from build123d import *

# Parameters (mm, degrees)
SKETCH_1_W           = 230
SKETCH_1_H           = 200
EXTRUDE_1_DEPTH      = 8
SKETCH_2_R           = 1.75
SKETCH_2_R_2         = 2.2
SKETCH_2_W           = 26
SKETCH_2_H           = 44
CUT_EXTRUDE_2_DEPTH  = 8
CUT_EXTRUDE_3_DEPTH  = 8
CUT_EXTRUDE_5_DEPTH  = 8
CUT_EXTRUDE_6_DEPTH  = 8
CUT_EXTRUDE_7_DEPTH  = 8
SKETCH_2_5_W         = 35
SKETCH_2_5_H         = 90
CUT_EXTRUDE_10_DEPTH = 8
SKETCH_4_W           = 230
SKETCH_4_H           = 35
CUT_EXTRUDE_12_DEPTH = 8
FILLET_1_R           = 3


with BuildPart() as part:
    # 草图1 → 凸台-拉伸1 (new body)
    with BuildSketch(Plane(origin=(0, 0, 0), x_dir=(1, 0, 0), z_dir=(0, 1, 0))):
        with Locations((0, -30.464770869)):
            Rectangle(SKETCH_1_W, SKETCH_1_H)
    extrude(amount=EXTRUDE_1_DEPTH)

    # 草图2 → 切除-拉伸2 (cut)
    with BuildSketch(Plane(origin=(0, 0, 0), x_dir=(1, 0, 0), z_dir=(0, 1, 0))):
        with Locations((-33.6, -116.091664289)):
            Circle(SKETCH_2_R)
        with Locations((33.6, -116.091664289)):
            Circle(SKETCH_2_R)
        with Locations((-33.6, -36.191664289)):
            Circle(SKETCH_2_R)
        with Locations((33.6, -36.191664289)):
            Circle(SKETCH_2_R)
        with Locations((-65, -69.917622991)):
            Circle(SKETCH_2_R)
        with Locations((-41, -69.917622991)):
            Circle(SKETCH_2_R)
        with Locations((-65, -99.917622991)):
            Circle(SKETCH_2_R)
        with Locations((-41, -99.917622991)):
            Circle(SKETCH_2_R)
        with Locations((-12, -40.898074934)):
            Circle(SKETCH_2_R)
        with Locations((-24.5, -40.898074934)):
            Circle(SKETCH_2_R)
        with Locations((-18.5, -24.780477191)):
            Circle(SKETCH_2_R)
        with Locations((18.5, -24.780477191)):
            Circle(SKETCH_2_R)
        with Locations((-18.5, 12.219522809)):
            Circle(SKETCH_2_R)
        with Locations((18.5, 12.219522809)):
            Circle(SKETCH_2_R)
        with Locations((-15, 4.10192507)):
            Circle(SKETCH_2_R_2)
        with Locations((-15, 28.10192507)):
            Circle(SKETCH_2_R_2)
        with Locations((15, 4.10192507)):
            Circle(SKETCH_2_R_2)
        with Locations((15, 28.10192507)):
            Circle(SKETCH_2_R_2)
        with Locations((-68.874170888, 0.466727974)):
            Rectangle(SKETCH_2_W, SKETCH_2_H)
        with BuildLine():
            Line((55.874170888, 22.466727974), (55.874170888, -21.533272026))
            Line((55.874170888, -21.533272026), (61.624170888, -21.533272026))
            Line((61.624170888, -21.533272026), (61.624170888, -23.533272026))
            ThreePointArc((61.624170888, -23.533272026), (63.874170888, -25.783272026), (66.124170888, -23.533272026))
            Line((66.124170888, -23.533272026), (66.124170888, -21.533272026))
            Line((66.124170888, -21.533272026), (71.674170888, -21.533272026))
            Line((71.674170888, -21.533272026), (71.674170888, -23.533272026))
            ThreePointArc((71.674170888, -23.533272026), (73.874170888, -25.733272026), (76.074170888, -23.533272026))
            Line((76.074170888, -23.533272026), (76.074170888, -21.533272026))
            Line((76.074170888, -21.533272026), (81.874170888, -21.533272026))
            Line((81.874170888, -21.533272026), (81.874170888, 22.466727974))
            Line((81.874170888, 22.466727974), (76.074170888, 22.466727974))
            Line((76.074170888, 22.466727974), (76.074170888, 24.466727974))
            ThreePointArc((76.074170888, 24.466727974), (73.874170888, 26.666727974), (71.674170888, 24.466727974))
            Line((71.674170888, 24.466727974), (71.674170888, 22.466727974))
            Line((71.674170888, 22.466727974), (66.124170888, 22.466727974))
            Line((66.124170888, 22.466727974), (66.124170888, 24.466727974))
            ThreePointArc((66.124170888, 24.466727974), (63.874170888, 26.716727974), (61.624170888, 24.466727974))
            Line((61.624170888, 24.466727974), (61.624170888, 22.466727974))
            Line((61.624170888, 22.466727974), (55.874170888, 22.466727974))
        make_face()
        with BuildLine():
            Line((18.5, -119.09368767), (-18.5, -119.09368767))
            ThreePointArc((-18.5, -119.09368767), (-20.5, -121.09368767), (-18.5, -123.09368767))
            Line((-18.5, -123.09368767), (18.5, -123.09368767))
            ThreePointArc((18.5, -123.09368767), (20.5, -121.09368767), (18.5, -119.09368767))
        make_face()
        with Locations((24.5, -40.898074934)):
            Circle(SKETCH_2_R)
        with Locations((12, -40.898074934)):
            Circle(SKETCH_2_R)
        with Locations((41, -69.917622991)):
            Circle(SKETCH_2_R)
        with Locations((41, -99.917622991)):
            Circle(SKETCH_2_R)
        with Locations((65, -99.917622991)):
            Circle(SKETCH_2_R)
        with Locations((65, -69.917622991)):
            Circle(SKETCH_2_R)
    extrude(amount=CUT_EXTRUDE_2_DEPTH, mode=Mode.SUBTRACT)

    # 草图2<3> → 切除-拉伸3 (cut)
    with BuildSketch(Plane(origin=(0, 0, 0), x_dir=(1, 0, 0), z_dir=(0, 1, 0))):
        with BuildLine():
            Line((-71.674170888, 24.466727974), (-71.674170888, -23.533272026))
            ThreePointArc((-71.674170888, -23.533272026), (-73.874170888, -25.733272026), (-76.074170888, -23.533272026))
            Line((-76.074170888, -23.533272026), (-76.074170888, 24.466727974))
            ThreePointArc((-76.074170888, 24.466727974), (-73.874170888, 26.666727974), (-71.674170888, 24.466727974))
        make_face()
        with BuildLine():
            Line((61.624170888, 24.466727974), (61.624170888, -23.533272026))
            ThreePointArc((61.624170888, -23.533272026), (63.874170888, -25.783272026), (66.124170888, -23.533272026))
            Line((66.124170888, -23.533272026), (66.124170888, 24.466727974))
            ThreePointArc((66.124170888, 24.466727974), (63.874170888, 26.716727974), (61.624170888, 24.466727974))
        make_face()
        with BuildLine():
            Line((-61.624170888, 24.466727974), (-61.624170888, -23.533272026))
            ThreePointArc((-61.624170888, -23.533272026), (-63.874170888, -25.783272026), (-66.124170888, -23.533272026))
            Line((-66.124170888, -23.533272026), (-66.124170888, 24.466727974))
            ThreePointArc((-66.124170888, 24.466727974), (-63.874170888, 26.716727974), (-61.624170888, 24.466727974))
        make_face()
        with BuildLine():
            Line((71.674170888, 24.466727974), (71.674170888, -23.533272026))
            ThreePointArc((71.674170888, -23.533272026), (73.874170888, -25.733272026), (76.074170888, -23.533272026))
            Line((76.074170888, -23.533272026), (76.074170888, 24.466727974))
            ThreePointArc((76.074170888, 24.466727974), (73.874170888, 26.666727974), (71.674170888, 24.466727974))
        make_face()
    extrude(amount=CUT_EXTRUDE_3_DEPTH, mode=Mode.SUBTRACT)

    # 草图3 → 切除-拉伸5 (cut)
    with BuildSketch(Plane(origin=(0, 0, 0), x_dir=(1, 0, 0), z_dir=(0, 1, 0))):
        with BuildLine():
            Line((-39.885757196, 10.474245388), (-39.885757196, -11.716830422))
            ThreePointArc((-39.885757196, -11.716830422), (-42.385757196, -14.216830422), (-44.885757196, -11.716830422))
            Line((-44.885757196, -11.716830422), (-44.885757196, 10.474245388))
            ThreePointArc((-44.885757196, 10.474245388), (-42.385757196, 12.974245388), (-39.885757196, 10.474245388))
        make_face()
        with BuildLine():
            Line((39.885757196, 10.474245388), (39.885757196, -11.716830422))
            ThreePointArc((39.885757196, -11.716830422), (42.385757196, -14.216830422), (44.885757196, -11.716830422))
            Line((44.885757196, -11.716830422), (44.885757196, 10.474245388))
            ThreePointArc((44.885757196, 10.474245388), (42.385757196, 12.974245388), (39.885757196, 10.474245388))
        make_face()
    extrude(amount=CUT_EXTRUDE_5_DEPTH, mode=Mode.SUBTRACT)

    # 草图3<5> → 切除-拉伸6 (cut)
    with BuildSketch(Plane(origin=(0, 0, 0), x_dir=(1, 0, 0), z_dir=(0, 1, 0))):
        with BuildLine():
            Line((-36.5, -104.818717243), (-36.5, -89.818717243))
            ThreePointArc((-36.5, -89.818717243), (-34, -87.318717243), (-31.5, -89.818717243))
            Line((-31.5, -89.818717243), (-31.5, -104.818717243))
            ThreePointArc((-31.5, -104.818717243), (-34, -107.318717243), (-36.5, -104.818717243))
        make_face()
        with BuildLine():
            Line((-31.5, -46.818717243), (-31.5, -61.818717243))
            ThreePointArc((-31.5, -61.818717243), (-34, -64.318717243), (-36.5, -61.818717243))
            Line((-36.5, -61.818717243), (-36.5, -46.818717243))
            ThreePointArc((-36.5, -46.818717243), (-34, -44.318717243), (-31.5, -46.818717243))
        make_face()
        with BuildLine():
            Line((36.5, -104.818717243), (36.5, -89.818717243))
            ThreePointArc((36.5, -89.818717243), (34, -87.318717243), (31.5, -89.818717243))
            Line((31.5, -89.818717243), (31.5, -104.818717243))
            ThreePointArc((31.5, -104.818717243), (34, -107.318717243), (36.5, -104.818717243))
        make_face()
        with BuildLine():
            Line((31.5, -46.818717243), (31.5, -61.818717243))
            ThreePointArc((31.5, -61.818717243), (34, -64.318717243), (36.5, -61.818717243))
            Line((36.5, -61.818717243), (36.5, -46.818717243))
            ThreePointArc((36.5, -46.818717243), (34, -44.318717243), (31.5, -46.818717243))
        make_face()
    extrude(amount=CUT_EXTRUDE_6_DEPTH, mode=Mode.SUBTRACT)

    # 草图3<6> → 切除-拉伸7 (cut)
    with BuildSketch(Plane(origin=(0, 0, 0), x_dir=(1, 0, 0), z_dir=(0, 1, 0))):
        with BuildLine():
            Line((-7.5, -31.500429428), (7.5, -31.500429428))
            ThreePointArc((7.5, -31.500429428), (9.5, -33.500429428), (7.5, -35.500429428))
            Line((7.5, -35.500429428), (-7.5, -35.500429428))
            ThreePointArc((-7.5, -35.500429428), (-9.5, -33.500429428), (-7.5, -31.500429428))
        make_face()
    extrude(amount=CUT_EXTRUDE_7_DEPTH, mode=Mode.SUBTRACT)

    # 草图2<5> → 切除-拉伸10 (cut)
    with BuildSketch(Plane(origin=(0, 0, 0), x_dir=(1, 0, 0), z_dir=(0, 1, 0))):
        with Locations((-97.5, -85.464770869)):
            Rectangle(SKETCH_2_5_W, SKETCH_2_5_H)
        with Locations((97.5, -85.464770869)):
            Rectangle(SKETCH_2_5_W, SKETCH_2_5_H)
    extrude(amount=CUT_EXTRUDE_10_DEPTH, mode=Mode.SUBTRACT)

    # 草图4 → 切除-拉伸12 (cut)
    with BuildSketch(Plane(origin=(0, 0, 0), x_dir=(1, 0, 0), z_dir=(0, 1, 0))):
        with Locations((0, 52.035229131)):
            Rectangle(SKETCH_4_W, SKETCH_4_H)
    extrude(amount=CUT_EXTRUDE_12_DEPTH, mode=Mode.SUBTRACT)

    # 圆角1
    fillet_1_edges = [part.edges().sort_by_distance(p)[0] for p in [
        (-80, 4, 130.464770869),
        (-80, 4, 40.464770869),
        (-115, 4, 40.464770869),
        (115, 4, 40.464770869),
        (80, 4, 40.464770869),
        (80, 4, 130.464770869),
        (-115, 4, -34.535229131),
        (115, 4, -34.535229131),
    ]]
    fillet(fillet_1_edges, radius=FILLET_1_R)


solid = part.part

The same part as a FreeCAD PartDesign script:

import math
import FreeCAD as App
import Part
import Sketcher

V = App.Vector
Q = App.Units.Quantity


def edges_at(feature, points):
    """Names of the edges that pass closest to the given points."""
    edges = feature.Shape.Edges
    near = lambda p: min(range(len(edges)), key=lambda i: edges[i].distToShape(Part.Vertex(*p))[0])
    return sorted({f"Edge{near(p) + 1}" for p in points})

doc = App.newDocument("Part")
params = doc.addObject("Spreadsheet::Sheet", "Params")
for row, (alias, value) in enumerate([
    ("sketch1_width", "230 mm"),
    ("sketch1_height", "200 mm"),
    ("pad1_length", "8 mm"),
    ("sketch2_radius", "2 mm"),
    ("sketch2_diameter", "3.5 mm"),
    ("sketch2_diameter2", "4.4 mm"),
    ("sketch2_width", "26 mm"),
    ("sketch2_width2", "37 mm"),
    ("pocket1_length", "8 mm"),
    ("sketch3_radius", "2.2 mm"),
    ("sketch3_height", "48 mm"),
    ("sketch3_radius2", "2.25 mm"),
    ("pocket2_length", "8 mm"),
    ("sketch4_radius", "2.5 mm"),
    ("pocket3_length", "8 mm"),
    ("sketch5_radius", "2.5 mm"),
    ("sketch5_height", "15 mm"),
    ("pocket4_length", "8 mm"),
    ("sketch6_radius", "2 mm"),
    ("sketch6_width", "15 mm"),
    ("pocket5_length", "8 mm"),
    ("sketch7_width", "35 mm"),
    ("sketch7_height", "90 mm"),
    ("pocket6_length", "8 mm"),
    ("sketch8_width", "230 mm"),
    ("sketch8_height", "35 mm"),
    ("pocket7_length", "8 mm"),
    ("fillet_radius", "3 mm"),
], start=1):
    params.set(f"A{row}", alias)
    params.set(f"B{row}", "=" + value)
    params.setAlias(f"B{row}", alias)

body = doc.addObject("PartDesign::Body", "Body")

sketch1 = body.newObject("Sketcher::SketchObject", "Sketch")
sketch1.AttachmentSupport = (doc.getObject("XZ_Plane"), [""])
sketch1.MapMode = "FlatFace"
sketch1.addGeometry(Part.LineSegment(V(-115, -70, 0), V(-115, 130, 0)), False)
sketch1.addGeometry(Part.LineSegment(V(-115, 130, 0), V(115, 130, 0)), False)
sketch1.addGeometry(Part.LineSegment(V(115, 130, 0), V(115, -70, 0)), False)
sketch1.addGeometry(Part.LineSegment(V(115, -70, 0), V(-115, -70, 0)), False)
sketch1.addConstraint(Sketcher.Constraint("Coincident", 0, 2, 1, 1))
sketch1.addConstraint(Sketcher.Constraint("Coincident", 1, 2, 2, 1))
sketch1.addConstraint(Sketcher.Constraint("Coincident", 2, 2, 3, 1))
sketch1.addConstraint(Sketcher.Constraint("Coincident", 3, 2, 0, 1))
sketch1.addConstraint(Sketcher.Constraint("Vertical", 0))
sketch1.addConstraint(Sketcher.Constraint("Horizontal", 1))
sketch1.addConstraint(Sketcher.Constraint("Vertical", 2))
sketch1.addConstraint(Sketcher.Constraint("Horizontal", 3))
sketch1.addConstraint(Sketcher.Constraint("DistanceX", 1, 1, 1, 2, Q("230 mm")))
sketch1.addConstraint(Sketcher.Constraint("DistanceY", 0, 1, 0, 2, Q("200 mm")))
sketch1.addConstraint(Sketcher.Constraint("DistanceX", 0, 2, -1, 1, Q("115 mm")))
sketch1.addConstraint(Sketcher.Constraint("DistanceY", -1, 1, 0, 2, Q("130.464771 mm")))
sketch1.setExpression("Constraints[8]", "Params.sketch1_width")
sketch1.setExpression("Constraints[9]", "Params.sketch1_height")
pad1 = body.newObject("PartDesign::Pad", "Pad")
pad1.Profile = sketch1
pad1.setExpression("Length", "Params.pad1_length")
pad1.Reversed = True

sketch2 = body.newObject("Sketcher::SketchObject", "Sketch001")
sketch2.AttachmentSupport = (doc.getObject("XZ_Plane"), [""])
sketch2.MapMode = "FlatFace"
sketch2.addGeometry(Part.Circle(V(-33.6, 116.1, 0), V(0, 0, 1), 1.8), False)
sketch2.addGeometry(Part.Circle(V(33.6, 116.1, 0), V(0, 0, 1), 1.8), False)
sketch2.addGeometry(Part.Circle(V(-33.6, 36.2, 0), V(0, 0, 1), 1.8), False)
sketch2.addGeometry(Part.Circle(V(33.6, 36.2, 0), V(0, 0, 1), 1.8), False)
sketch2.addGeometry(Part.Circle(V(-65, 69.9, 0), V(0, 0, 1), 1.8), False)
sketch2.addGeometry(Part.Circle(V(-41, 69.9, 0), V(0, 0, 1), 1.8), False)
sketch2.addGeometry(Part.Circle(V(-65, 99.9, 0), V(0, 0, 1), 1.8), False)
sketch2.addGeometry(Part.Circle(V(-41, 99.9, 0), V(0, 0, 1), 1.8), False)
sketch2.addGeometry(Part.Circle(V(-12, 40.9, 0), V(0, 0, 1), 1.8), False)
sketch2.addGeometry(Part.Circle(V(-24.5, 40.9, 0), V(0, 0, 1), 1.8), False)
sketch2.addGeometry(Part.Circle(V(-18.5, 24.8, 0), V(0, 0, 1), 1.8), False)
sketch2.addGeometry(Part.Circle(V(18.5, 24.8, 0), V(0, 0, 1), 1.8), False)
sketch2.addGeometry(Part.Circle(V(-18.5, -12.2, 0), V(0, 0, 1), 1.8), False)
sketch2.addGeometry(Part.Circle(V(18.5, -12.2, 0), V(0, 0, 1), 1.8), False)
sketch2.addGeometry(Part.Circle(V(-15, -4.1, 0), V(0, 0, 1), 2.2), False)
sketch2.addGeometry(Part.Circle(V(-15, -28.1, 0), V(0, 0, 1), 2.2), False)
sketch2.addGeometry(Part.Circle(V(15, -4.1, 0), V(0, 0, 1), 2.2), False)
sketch2.addGeometry(Part.Circle(V(15, -28.1, 0), V(0, 0, 1), 2.2), False)
sketch2.addGeometry(Part.LineSegment(V(-81.9, -22.5, 0), V(-81.9, 21.5, 0)), False)
sketch2.addGeometry(Part.LineSegment(V(-81.9, 21.5, 0), V(-55.9, 21.5, 0)), False)
sketch2.addGeometry(Part.LineSegment(V(-55.9, 21.5, 0), V(-55.9, -22.5, 0)), False)
sketch2.addGeometry(Part.LineSegment(V(-55.9, -22.5, 0), V(-81.9, -22.5, 0)), False)
sketch2.addGeometry(Part.LineSegment(V(55.9, -22.5, 0), V(55.9, 21.5, 0)), False)
sketch2.addGeometry(Part.LineSegment(V(55.9, 21.5, 0), V(61.6, 21.5, 0)), False)
sketch2.addGeometry(Part.LineSegment(V(61.6, 21.5, 0), V(61.6, 23.5, 0)), False)
sketch2.addGeometry(Part.ArcOfCircle(Part.Circle(V(63.9, 23.5, 0), V(0, 0, 1), 2.2), math.radians(0), math.radians(180)), False)
sketch2.addGeometry(Part.LineSegment(V(66.1, 23.5, 0), V(66.1, 21.5, 0)), False)
sketch2.addGeometry(Part.LineSegment(V(66.1, 21.5, 0), V(71.7, 21.5, 0)), False)
sketch2.addGeometry(Part.LineSegment(V(71.7, 21.5, 0), V(71.7, 23.5, 0)), False)
sketch2.addGeometry(Part.ArcOfCircle(Part.Circle(V(73.9, 23.5, 0), V(0, 0, 1), 2.2), math.radians(0), math.radians(180)), False)
sketch2.addGeometry(Part.LineSegment(V(76.1, 23.5, 0), V(76.1, 21.5, 0)), False)
sketch2.addGeometry(Part.LineSegment(V(76.1, 21.5, 0), V(81.9, 21.5, 0)), False)
sketch2.addGeometry(Part.LineSegment(V(81.9, 21.5, 0), V(81.9, -22.5, 0)), False)
sketch2.addGeometry(Part.LineSegment(V(81.9, -22.5, 0), V(76.1, -22.5, 0)), False)
sketch2.addGeometry(Part.LineSegment(V(76.1, -22.5, 0), V(76.1, -24.5, 0)), False)
sketch2.addGeometry(Part.ArcOfCircle(Part.Circle(V(73.9, -24.5, 0), V(0, 0, 1), 2.2), math.radians(180), math.radians(360)), False)
sketch2.addGeometry(Part.LineSegment(V(71.7, -24.5, 0), V(71.7, -22.5, 0)), False)
sketch2.addGeometry(Part.LineSegment(V(71.7, -22.5, 0), V(66.1, -22.5, 0)), False)
sketch2.addGeometry(Part.LineSegment(V(66.1, -22.5, 0), V(66.1, -24.5, 0)), False)
sketch2.addGeometry(Part.ArcOfCircle(Part.Circle(V(63.9, -24.5, 0), V(0, 0, 1), 2.2), math.radians(180), math.radians(360)), False)
sketch2.addGeometry(Part.LineSegment(V(61.6, -24.5, 0), V(61.6, -22.5, 0)), False)
sketch2.addGeometry(Part.LineSegment(V(61.6, -22.5, 0), V(55.9, -22.5, 0)), False)
sketch2.addGeometry(Part.LineSegment(V(18.5, 119.1, 0), V(-18.5, 119.1, 0)), False)
sketch2.addGeometry(Part.ArcOfCircle(Part.Circle(V(-18.5, 121.1, 0), V(0, 0, 1), 2), math.radians(90), math.radians(270)), False)
sketch2.addGeometry(Part.LineSegment(V(-18.5, 123.1, 0), V(18.5, 123.1, 0)), False)
sketch2.addGeometry(Part.ArcOfCircle(Part.Circle(V(18.5, 121.1, 0), V(0, 0, 1), 2), math.radians(-90), math.radians(90)), False)
sketch2.addGeometry(Part.Circle(V(24.5, 40.9, 0), V(0, 0, 1), 1.8), False)
sketch2.addGeometry(Part.Circle(V(12, 40.9, 0), V(0, 0, 1), 1.8), False)
sketch2.addGeometry(Part.Circle(V(41, 69.9, 0), V(0, 0, 1), 1.8), False)
sketch2.addGeometry(Part.Circle(V(41, 99.9, 0), V(0, 0, 1), 1.8), False)
sketch2.addGeometry(Part.Circle(V(65, 99.9, 0), V(0, 0, 1), 1.8), False)
sketch2.addGeometry(Part.Circle(V(65, 69.9, 0), V(0, 0, 1), 1.8), False)
sketch2.addConstraint(Sketcher.Constraint("Coincident", 18, 2, 19, 1))
sketch2.addConstraint(Sketcher.Constraint("Coincident", 19, 2, 20, 1))
sketch2.addConstraint(Sketcher.Constraint("Coincident", 20, 2, 21, 1))
sketch2.addConstraint(Sketcher.Constraint("Coincident", 21, 2, 18, 1))
sketch2.addConstraint(Sketcher.Constraint("Coincident", 22, 2, 23, 1))
sketch2.addConstraint(Sketcher.Constraint("Coincident", 23, 2, 24, 1))
sketch2.addConstraint(Sketcher.Constraint("Tangent", 24, 2, 25, 2))
sketch2.addConstraint(Sketcher.Constraint("Tangent", 25, 1, 26, 1))
sketch2.addConstraint(Sketcher.Constraint("Coincident", 26, 2, 27, 1))
sketch2.addConstraint(Sketcher.Constraint("Coincident", 27, 2, 28, 1))
sketch2.addConstraint(Sketcher.Constraint("Tangent", 28, 2, 29, 2))
sketch2.addConstraint(Sketcher.Constraint("Tangent", 29, 1, 30, 1))
sketch2.addConstraint(Sketcher.Constraint("Coincident", 30, 2, 31, 1))
sketch2.addConstraint(Sketcher.Constraint("Coincident", 31, 2, 32, 1))
sketch2.addConstraint(Sketcher.Constraint("Coincident", 32, 2, 33, 1))
sketch2.addConstraint(Sketcher.Constraint("Coincident", 33, 2, 34, 1))
sketch2.addConstraint(Sketcher.Constraint("Tangent", 34, 2, 35, 2))
sketch2.addConstraint(Sketcher.Constraint("Tangent", 35, 1, 36, 1))
sketch2.addConstraint(Sketcher.Constraint("Coincident", 36, 2, 37, 1))
sketch2.addConstraint(Sketcher.Constraint("Coincident", 37, 2, 38, 1))
sketch2.addConstraint(Sketcher.Constraint("Tangent", 38, 2, 39, 2))
sketch2.addConstraint(Sketcher.Constraint("Tangent", 39, 1, 40, 1))
sketch2.addConstraint(Sketcher.Constraint("Coincident", 40, 2, 41, 1))
sketch2.addConstraint(Sketcher.Constraint("Coincident", 41, 2, 22, 1))
sketch2.addConstraint(Sketcher.Constraint("Tangent", 42, 2, 43, 2))
sketch2.addConstraint(Sketcher.Constraint("Tangent", 43, 1, 44, 1))
sketch2.addConstraint(Sketcher.Constraint("Tangent", 44, 2, 45, 2))
sketch2.addConstraint(Sketcher.Constraint("Tangent", 45, 1, 42, 1))
sketch2.addConstraint(Sketcher.Constraint("Vertical", 18))
sketch2.addConstraint(Sketcher.Constraint("Horizontal", 19))
sketch2.addConstraint(Sketcher.Constraint("Vertical", 20))
sketch2.addConstraint(Sketcher.Constraint("Horizontal", 21))
sketch2.addConstraint(Sketcher.Constraint("Vertical", 22))
sketch2.addConstraint(Sketcher.Constraint("Horizontal", 23))
sketch2.addConstraint(Sketcher.Constraint("Vertical", 24))
sketch2.addConstraint(Sketcher.Constraint("Vertical", 26))
sketch2.addConstraint(Sketcher.Constraint("Horizontal", 27))
sketch2.addConstraint(Sketcher.Constraint("Vertical", 28))
sketch2.addConstraint(Sketcher.Constraint("Vertical", 30))
sketch2.addConstraint(Sketcher.Constraint("Horizontal", 31))
sketch2.addConstraint(Sketcher.Constraint("Vertical", 32))
sketch2.addConstraint(Sketcher.Constraint("Horizontal", 33))
sketch2.addConstraint(Sketcher.Constraint("Vertical", 34))
sketch2.addConstraint(Sketcher.Constraint("Vertical", 36))
sketch2.addConstraint(Sketcher.Constraint("Horizontal", 37))
sketch2.addConstraint(Sketcher.Constraint("Vertical", 38))
sketch2.addConstraint(Sketcher.Constraint("Vertical", 40))
sketch2.addConstraint(Sketcher.Constraint("Horizontal", 41))
sketch2.addConstraint(Sketcher.Constraint("Horizontal", 42))
sketch2.addConstraint(Sketcher.Constraint("Horizontal", 44))
sketch2.addConstraint(Sketcher.Constraint("Equal", 0, 1))
sketch2.addConstraint(Sketcher.Constraint("Equal", 1, 2))
sketch2.addConstraint(Sketcher.Constraint("Equal", 2, 3))
sketch2.addConstraint(Sketcher.Constraint("Equal", 3, 4))
sketch2.addConstraint(Sketcher.Constraint("Equal", 4, 5))
sketch2.addConstraint(Sketcher.Constraint("Equal", 5, 6))
sketch2.addConstraint(Sketcher.Constraint("Equal", 6, 7))
sketch2.addConstraint(Sketcher.Constraint("Equal", 7, 8))
sketch2.addConstraint(Sketcher.Constraint("Equal", 8, 9))
sketch2.addConstraint(Sketcher.Constraint("Equal", 9, 10))
sketch2.addConstraint(Sketcher.Constraint("Equal", 10, 11))
sketch2.addConstraint(Sketcher.Constraint("Equal", 11, 12))
sketch2.addConstraint(Sketcher.Constraint("Equal", 12, 13))
sketch2.addConstraint(Sketcher.Constraint("Equal", 14, 15))
sketch2.addConstraint(Sketcher.Constraint("Equal", 15, 16))
sketch2.addConstraint(Sketcher.Constraint("Equal", 16, 17))
sketch2.addConstraint(Sketcher.Constraint("Equal", 17, 29))
sketch2.addConstraint(Sketcher.Constraint("Equal", 29, 35))
sketch2.addConstraint(Sketcher.Constraint("Equal", 25, 39))
sketch2.addConstraint(Sketcher.Constraint("Equal", 13, 46))
sketch2.addConstraint(Sketcher.Constraint("Equal", 46, 47))
sketch2.addConstraint(Sketcher.Constraint("Equal", 47, 48))
sketch2.addConstraint(Sketcher.Constraint("Equal", 48, 49))
sketch2.addConstraint(Sketcher.Constraint("Equal", 49, 50))
sketch2.addConstraint(Sketcher.Constraint("Equal", 50, 51))
sketch2.addConstraint(Sketcher.Constraint("Symmetric", 0, 3, 1, 3, -2))
sketch2.addConstraint(Sketcher.Constraint("Symmetric", 2, 3, 3, 3, -2))
sketch2.addConstraint(Sketcher.Constraint("Symmetric", 10, 3, 11, 3, -2))
sketch2.addConstraint(Sketcher.Constraint("Symmetric", 12, 3, 13, 3, -2))
sketch2.addConstraint(Sketcher.Constraint("Symmetric", 14, 3, 16, 3, -2))
sketch2.addConstraint(Sketcher.Constraint("Symmetric", 15, 3, 17, 3, -2))
sketch2.addConstraint(Sketcher.Constraint("Symmetric", 9, 3, 46, 3, -2))
sketch2.addConstraint(Sketcher.Constraint("Symmetric", 8, 3, 47, 3, -2))
sketch2.addConstraint(Sketcher.Constraint("Symmetric", 5, 3, 48, 3, -2))
sketch2.addConstraint(Sketcher.Constraint("Symmetric", 7, 3, 49, 3, -2))
sketch2.addConstraint(Sketcher.Constraint("Symmetric", 6, 3, 50, 3, -2))
sketch2.addConstraint(Sketcher.Constraint("Symmetric", 4, 3, 51, 3, -2))
sketch2.addConstraint(Sketcher.Constraint("Symmetric", 19, 2, 22, 2, -2))
sketch2.addConstraint(Sketcher.Constraint("Symmetric", 18, 2, 31, 2, -2))
sketch2.addConstraint(Sketcher.Constraint("Horizontal", 4, 3, 5, 3))
sketch2.addConstraint(Sketcher.Constraint("Horizontal", 6, 3, 7, 3))
sketch2.addConstraint(Sketcher.Constraint("Horizontal", 8, 3, 9, 3))
sketch2.addConstraint(Sketcher.Constraint("Horizontal", 25, 3, 29, 3))
sketch2.addConstraint(Sketcher.Constraint("Horizontal", 35, 3, 39, 3))
sketch2.addConstraint(Sketcher.Constraint("Horizontal", 23, 2, 26, 2))
sketch2.addConstraint(Sketcher.Constraint("Horizontal", 21, 2, 32, 2))
sketch2.addConstraint(Sketcher.Constraint("Horizontal", 33, 2, 36, 2))
sketch2.addConstraint(Sketcher.Constraint("Horizontal", 37, 2, 40, 2))
sketch2.addConstraint(Sketcher.Constraint("Vertical", 0, 3, 2, 3))
sketch2.addConstraint(Sketcher.Constraint("Vertical", 4, 3, 6, 3))
sketch2.addConstraint(Sketcher.Constraint("Vertical", 5, 3, 7, 3))
sketch2.addConstraint(Sketcher.Constraint("Vertical", 10, 3, 12, 3))
sketch2.addConstraint(Sketcher.Constraint("Vertical", 14, 3, 15, 3))
sketch2.addConstraint(Sketcher.Constraint("Vertical", 29, 3, 35, 3))
sketch2.addConstraint(Sketcher.Constraint("Vertical", 25, 3, 39, 3))
sketch2.addConstraint(Sketcher.Constraint("Vertical", 12, 3, 43, 3))
sketch2.addConstraint(Sketcher.Constraint("Vertical", 13, 3, 45, 3))
sketch2.addConstraint(Sketcher.Constraint("Equal", 30, 34))
sketch2.addConstraint(Sketcher.Constraint("Radius", 43, Q("2 mm")))
sketch2.addConstraint(Sketcher.Constraint("Diameter", 0, Q("3.5 mm")))
sketch2.addConstraint(Sketcher.Constraint("Diameter", 14, Q("4.4 mm")))
sketch2.addConstraint(Sketcher.Constraint("DistanceX", 19, 1, 19, 2, Q("26 mm")))
sketch2.addConstraint(Sketcher.Constraint("DistanceX", 42, 2, 42, 1, Q("37 mm")))
sketch2.addConstraint(Sketcher.Constraint("DistanceY", 18, 1, 18, 2, Q("44 mm")))
sketch2.addConstraint(Sketcher.Constraint("DistanceY", 24, 1, 24, 2, Q("2 mm")))
sketch2.addConstraint(Sketcher.Constraint("Radius", 25, Q("2.25 mm")))
sketch2.addConstraint(Sketcher.Constraint("DistanceX", 31, 1, 31, 2, Q("5.8 mm")))
sketch2.addConstraint(Sketcher.Constraint("DistanceX", 4, 3, -1, 1, Q("65 mm")))
sketch2.addConstraint(Sketcher.Constraint("DistanceX", 5, 3, -1, 1, Q("41 mm")))
sketch2.addConstraint(Sketcher.Constraint("DistanceX", 8, 3, -1, 1, Q("12 mm")))
sketch2.addConstraint(Sketcher.Constraint("DistanceX", 14, 3, -1, 1, Q("15 mm")))
sketch2.addConstraint(Sketcher.Constraint("DistanceY", 4, 3, 6, 3, Q("30 mm")))
sketch2.addConstraint(Sketcher.Constraint("DistanceX", 9, 3, 10, 3, Q("6 mm")))
sketch2.addConstraint(Sketcher.Constraint("DistanceY", 12, 3, 10, 3, Q("37 mm")))
sketch2.addConstraint(Sketcher.Constraint("DistanceY", 15, 3, 14, 3, Q("24 mm")))
sketch2.addConstraint(Sketcher.Constraint("DistanceX", 25, 3, 29, 3, Q("10 mm")))
sketch2.addConstraint(Sketcher.Constraint("DistanceX", 0, 3, -1, 1, Q("33.6 mm")))
sketch2.addConstraint(Sketcher.Constraint("DistanceY", 2, 3, 0, 3, Q("79.9 mm")))
sketch2.addConstraint(Sketcher.Constraint("DistanceX", -1, 1, 25, 3, Q("63.874171 mm")))
sketch2.addConstraint(Sketcher.Constraint("DistanceY", 2, 3, 4, 3, Q("33.725959 mm")))
sketch2.addConstraint(Sketcher.Constraint("DistanceY", 2, 3, 8, 3, Q("4.706411 mm")))
sketch2.addConstraint(Sketcher.Constraint("DistanceY", 14, 3, 2, 3, Q("40.293589 mm")))
sketch2.addConstraint(Sketcher.Constraint("DistanceY", 25, 3, 51, 3, Q("46.384351 mm")))
sketch2.addConstraint(Sketcher.Constraint("DistanceY", -1, 1, 0, 3, Q("116.091664 mm")))
sketch2.addConstraint(Sketcher.Constraint("DistanceY", -1, 1, 10, 3, Q("24.780477 mm")))
sketch2.addConstraint(Sketcher.Constraint("DistanceY", -1, 1, 43, 3, Q("121.093688 mm")))
sketch2.setExpression("Constraints[108]", "Params.sketch2_radius")
sketch2.setExpression("Constraints[109]", "Params.sketch2_diameter")
sketch2.setExpression("Constraints[110]", "Params.sketch2_diameter2")
sketch2.setExpression("Constraints[111]", "Params.sketch2_width")
sketch2.setExpression("Constraints[112]", "Params.sketch2_width2")
pocket1 = body.newObject("PartDesign::Pocket", "Pocket")
pocket1.Profile = sketch2
pocket1.setExpression("Length", "Params.pocket1_length")

sketch3 = body.newObject("Sketcher::SketchObject", "Sketch002")
sketch3.AttachmentSupport = (doc.getObject("XZ_Plane"), [""])
sketch3.MapMode = "FlatFace"
sketch3.addGeometry(Part.LineSegment(V(-71.7, 23.5, 0), V(-71.7, -24.5, 0)), False)
sketch3.addGeometry(Part.ArcOfCircle(Part.Circle(V(-73.9, -24.5, 0), V(0, 0, 1), 2.2), math.radians(180), math.radians(360)), False)
sketch3.addGeometry(Part.LineSegment(V(-76.1, -24.5, 0), V(-76.1, 23.5, 0)), False)
sketch3.addGeometry(Part.ArcOfCircle(Part.Circle(V(-73.9, 23.5, 0), V(0, 0, 1), 2.2), math.radians(0), math.radians(180)), False)
sketch3.addGeometry(Part.LineSegment(V(61.6, -24.5, 0), V(61.6, 23.5, 0)), False)
sketch3.addGeometry(Part.ArcOfCircle(Part.Circle(V(63.9, 23.5, 0), V(0, 0, 1), 2.2), math.radians(0), math.radians(180)), False)
sketch3.addGeometry(Part.LineSegment(V(66.1, 23.5, 0), V(66.1, -24.5, 0)), False)
sketch3.addGeometry(Part.ArcOfCircle(Part.Circle(V(63.9, -24.5, 0), V(0, 0, 1), 2.2), math.radians(180), math.radians(360)), False)
sketch3.addGeometry(Part.LineSegment(V(-61.6, 23.5, 0), V(-61.6, -24.5, 0)), False)
sketch3.addGeometry(Part.ArcOfCircle(Part.Circle(V(-63.9, -24.5, 0), V(0, 0, 1), 2.2), math.radians(180), math.radians(360)), False)
sketch3.addGeometry(Part.LineSegment(V(-66.1, -24.5, 0), V(-66.1, 23.5, 0)), False)
sketch3.addGeometry(Part.ArcOfCircle(Part.Circle(V(-63.9, 23.5, 0), V(0, 0, 1), 2.2), math.radians(0), math.radians(180)), False)
sketch3.addGeometry(Part.LineSegment(V(71.7, -24.5, 0), V(71.7, 23.5, 0)), False)
sketch3.addGeometry(Part.ArcOfCircle(Part.Circle(V(73.9, 23.5, 0), V(0, 0, 1), 2.2), math.radians(0), math.radians(180)), False)
sketch3.addGeometry(Part.LineSegment(V(76.1, 23.5, 0), V(76.1, -24.5, 0)), False)
sketch3.addGeometry(Part.ArcOfCircle(Part.Circle(V(73.9, -24.5, 0), V(0, 0, 1), 2.2), math.radians(180), math.radians(360)), False)
sketch3.addConstraint(Sketcher.Constraint("Tangent", 0, 2, 1, 2))
sketch3.addConstraint(Sketcher.Constraint("Tangent", 1, 1, 2, 1))
sketch3.addConstraint(Sketcher.Constraint("Tangent", 2, 2, 3, 2))
sketch3.addConstraint(Sketcher.Constraint("Tangent", 3, 1, 0, 1))
sketch3.addConstraint(Sketcher.Constraint("Tangent", 4, 2, 5, 2))
sketch3.addConstraint(Sketcher.Constraint("Tangent", 5, 1, 6, 1))
sketch3.addConstraint(Sketcher.Constraint("Tangent", 6, 2, 7, 2))
sketch3.addConstraint(Sketcher.Constraint("Tangent", 7, 1, 4, 1))
sketch3.addConstraint(Sketcher.Constraint("Tangent", 8, 2, 9, 2))
sketch3.addConstraint(Sketcher.Constraint("Tangent", 9, 1, 10, 1))
sketch3.addConstraint(Sketcher.Constraint("Tangent", 10, 2, 11, 2))
sketch3.addConstraint(Sketcher.Constraint("Tangent", 11, 1, 8, 1))
sketch3.addConstraint(Sketcher.Constraint("Tangent", 12, 2, 13, 2))
sketch3.addConstraint(Sketcher.Constraint("Tangent", 13, 1, 14, 1))
sketch3.addConstraint(Sketcher.Constraint("Tangent", 14, 2, 15, 2))
sketch3.addConstraint(Sketcher.Constraint("Tangent", 15, 1, 12, 1))
sketch3.addConstraint(Sketcher.Constraint("Vertical", 0))
sketch3.addConstraint(Sketcher.Constraint("Vertical", 2))
sketch3.addConstraint(Sketcher.Constraint("Vertical", 4))
sketch3.addConstraint(Sketcher.Constraint("Vertical", 6))
sketch3.addConstraint(Sketcher.Constraint("Vertical", 8))
sketch3.addConstraint(Sketcher.Constraint("Vertical", 10))
sketch3.addConstraint(Sketcher.Constraint("Vertical", 12))
sketch3.addConstraint(Sketcher.Constraint("Vertical", 14))
sketch3.addConstraint(Sketcher.Constraint("Equal", 7, 9))
sketch3.addConstraint(Sketcher.Constraint("Equal", 3, 13))
sketch3.addConstraint(Sketcher.Constraint("Symmetric", 7, 3, 9, 3, -2))
sketch3.addConstraint(Sketcher.Constraint("Symmetric", 3, 3, 13, 3, -2))
sketch3.addConstraint(Sketcher.Constraint("Horizontal", 3, 3, 5, 3))
sketch3.addConstraint(Sketcher.Constraint("Horizontal", 1, 3, 7, 3))
sketch3.addConstraint(Sketcher.Constraint("Horizontal", 5, 3, 11, 3))
sketch3.addConstraint(Sketcher.Constraint("Horizontal", 9, 3, 15, 3))
sketch3.addConstraint(Sketcher.Constraint("Radius", 1, Q("2.2 mm")))
sketch3.addConstraint(Sketcher.Constraint("DistanceY", 0, 2, 0, 1, Q("48 mm")))
sketch3.addConstraint(Sketcher.Constraint("Radius", 5, Q("2.25 mm")))
sketch3.addConstraint(Sketcher.Constraint("DistanceX", 1, 3, 9, 3, Q("10 mm")))
sketch3.addConstraint(Sketcher.Constraint("DistanceX", 1, 3, -1, 1, Q("73.874171 mm")))
sketch3.addConstraint(Sketcher.Constraint("DistanceY", 1, 3, -1, 1, Q("24.466728 mm")))
sketch3.setExpression("Constraints[32]", "Params.sketch3_radius")
sketch3.setExpression("Constraints[33]", "Params.sketch3_height")
sketch3.setExpression("Constraints[34]", "Params.sketch3_radius2")
pocket2 = body.newObject("PartDesign::Pocket", "Pocket001")
pocket2.Profile = sketch3
pocket2.setExpression("Length", "Params.pocket2_length")

sketch4 = body.newObject("Sketcher::SketchObject", "Sketch003")
sketch4.AttachmentSupport = (doc.getObject("XZ_Plane"), [""])
sketch4.MapMode = "FlatFace"
sketch4.addGeometry(Part.LineSegment(V(-39.9, 11.7, 0), V(-39.9, -10.5, 0)), False)
sketch4.addGeometry(Part.ArcOfCircle(Part.Circle(V(-42.4, -10.5, 0), V(0, 0, 1), 2.5), math.radians(180), math.radians(360)), False)
sketch4.addGeometry(Part.LineSegment(V(-44.9, -10.5, 0), V(-44.9, 11.7, 0)), False)
sketch4.addGeometry(Part.ArcOfCircle(Part.Circle(V(-42.4, 11.7, 0), V(0, 0, 1), 2.5), math.radians(0), math.radians(180)), False)
sketch4.addGeometry(Part.LineSegment(V(39.9, -10.5, 0), V(39.9, 11.7, 0)), False)
sketch4.addGeometry(Part.ArcOfCircle(Part.Circle(V(42.4, 11.7, 0), V(0, 0, 1), 2.5), math.radians(0), math.radians(180)), False)
sketch4.addGeometry(Part.LineSegment(V(44.9, 11.7, 0), V(44.9, -10.5, 0)), False)
sketch4.addGeometry(Part.ArcOfCircle(Part.Circle(V(42.4, -10.5, 0), V(0, 0, 1), 2.5), math.radians(180), math.radians(360)), False)
sketch4.addConstraint(Sketcher.Constraint("Tangent", 0, 2, 1, 2))
sketch4.addConstraint(Sketcher.Constraint("Tangent", 1, 1, 2, 1))
sketch4.addConstraint(Sketcher.Constraint("Tangent", 2, 2, 3, 2))
sketch4.addConstraint(Sketcher.Constraint("Tangent", 3, 1, 0, 1))
sketch4.addConstraint(Sketcher.Constraint("Tangent", 4, 2, 5, 2))
sketch4.addConstraint(Sketcher.Constraint("Tangent", 5, 1, 6, 1))
sketch4.addConstraint(Sketcher.Constraint("Tangent", 6, 2, 7, 2))
sketch4.addConstraint(Sketcher.Constraint("Tangent", 7, 1, 4, 1))
sketch4.addConstraint(Sketcher.Constraint("Vertical", 0))
sketch4.addConstraint(Sketcher.Constraint("Vertical", 2))
sketch4.addConstraint(Sketcher.Constraint("Vertical", 4))
sketch4.addConstraint(Sketcher.Constraint("Vertical", 6))
sketch4.addConstraint(Sketcher.Constraint("Equal", 3, 5))
sketch4.addConstraint(Sketcher.Constraint("Symmetric", 3, 3, 5, 3, -2))
sketch4.addConstraint(Sketcher.Constraint("Horizontal", 1, 3, 7, 3))
sketch4.addConstraint(Sketcher.Constraint("Radius", 1, Q("2.5 mm")))
sketch4.addConstraint(Sketcher.Constraint("DistanceY", 0, 2, 0, 1, Q("22.191076 mm")))
sketch4.addConstraint(Sketcher.Constraint("DistanceY", -1, 1, 3, 3, Q("11.71683 mm")))
sketch4.addConstraint(Sketcher.Constraint("DistanceX", 1, 3, -1, 1, Q("42.385757 mm")))
sketch4.setExpression("Constraints[15]", "Params.sketch4_radius")
pocket3 = body.newObject("PartDesign::Pocket", "Pocket002")
pocket3.Profile = sketch4
pocket3.setExpression("Length", "Params.pocket3_length")

sketch5 = body.newObject("Sketcher::SketchObject", "Sketch004")
sketch5.AttachmentSupport = (doc.getObject("XZ_Plane"), [""])
sketch5.MapMode = "FlatFace"
sketch5.addGeometry(Part.LineSegment(V(-36.5, 89.8, 0), V(-36.5, 104.8, 0)), False)
sketch5.addGeometry(Part.ArcOfCircle(Part.Circle(V(-34, 104.8, 0), V(0, 0, 1), 2.5), math.radians(0), math.radians(180)), False)
sketch5.addGeometry(Part.LineSegment(V(-31.5, 104.8, 0), V(-31.5, 89.8, 0)), False)
sketch5.addGeometry(Part.ArcOfCircle(Part.Circle(V(-34, 89.8, 0), V(0, 0, 1), 2.5), math.radians(180), math.radians(360)), False)
sketch5.addGeometry(Part.LineSegment(V(-31.5, 61.8, 0), V(-31.5, 46.8, 0)), False)
sketch5.addGeometry(Part.ArcOfCircle(Part.Circle(V(-34, 46.8, 0), V(0, 0, 1), 2.5), math.radians(180), math.radians(360)), False)
sketch5.addGeometry(Part.LineSegment(V(-36.5, 46.8, 0), V(-36.5, 61.8, 0)), False)
sketch5.addGeometry(Part.ArcOfCircle(Part.Circle(V(-34, 61.8, 0), V(0, 0, 1), 2.5), math.radians(0), math.radians(180)), False)
sketch5.addGeometry(Part.LineSegment(V(36.5, 104.8, 0), V(36.5, 89.8, 0)), False)
sketch5.addGeometry(Part.ArcOfCircle(Part.Circle(V(34, 89.8, 0), V(0, 0, 1), 2.5), math.radians(180), math.radians(360)), False)
sketch5.addGeometry(Part.LineSegment(V(31.5, 89.8, 0), V(31.5, 104.8, 0)), False)
sketch5.addGeometry(Part.ArcOfCircle(Part.Circle(V(34, 104.8, 0), V(0, 0, 1), 2.5), math.radians(0), math.radians(180)), False)
sketch5.addGeometry(Part.LineSegment(V(31.5, 46.8, 0), V(31.5, 61.8, 0)), False)
sketch5.addGeometry(Part.ArcOfCircle(Part.Circle(V(34, 61.8, 0), V(0, 0, 1), 2.5), math.radians(0), math.radians(180)), False)
sketch5.addGeometry(Part.LineSegment(V(36.5, 61.8, 0), V(36.5, 46.8, 0)), False)
sketch5.addGeometry(Part.ArcOfCircle(Part.Circle(V(34, 46.8, 0), V(0, 0, 1), 2.5), math.radians(180), math.radians(360)), False)
sketch5.addConstraint(Sketcher.Constraint("Tangent", 0, 2, 1, 2))
sketch5.addConstraint(Sketcher.Constraint("Tangent", 1, 1, 2, 1))
sketch5.addConstraint(Sketcher.Constraint("Tangent", 2, 2, 3, 2))
sketch5.addConstraint(Sketcher.Constraint("Tangent", 3, 1, 0, 1))
sketch5.addConstraint(Sketcher.Constraint("Tangent", 4, 2, 5, 2))
sketch5.addConstraint(Sketcher.Constraint("Tangent", 5, 1, 6, 1))
sketch5.addConstraint(Sketcher.Constraint("Tangent", 6, 2, 7, 2))
sketch5.addConstraint(Sketcher.Constraint("Tangent", 7, 1, 4, 1))
sketch5.addConstraint(Sketcher.Constraint("Tangent", 8, 2, 9, 2))
sketch5.addConstraint(Sketcher.Constraint("Tangent", 9, 1, 10, 1))
sketch5.addConstraint(Sketcher.Constraint("Tangent", 10, 2, 11, 2))
sketch5.addConstraint(Sketcher.Constraint("Tangent", 11, 1, 8, 1))
sketch5.addConstraint(Sketcher.Constraint("Tangent", 12, 2, 13, 2))
sketch5.addConstraint(Sketcher.Constraint("Tangent", 13, 1, 14, 1))
sketch5.addConstraint(Sketcher.Constraint("Tangent", 14, 2, 15, 2))
sketch5.addConstraint(Sketcher.Constraint("Tangent", 15, 1, 12, 1))
sketch5.addConstraint(Sketcher.Constraint("Vertical", 0))
sketch5.addConstraint(Sketcher.Constraint("Vertical", 2))
sketch5.addConstraint(Sketcher.Constraint("Vertical", 4))
sketch5.addConstraint(Sketcher.Constraint("Vertical", 6))
sketch5.addConstraint(Sketcher.Constraint("Vertical", 8))
sketch5.addConstraint(Sketcher.Constraint("Vertical", 10))
sketch5.addConstraint(Sketcher.Constraint("Vertical", 12))
sketch5.addConstraint(Sketcher.Constraint("Vertical", 14))
sketch5.addConstraint(Sketcher.Constraint("Equal", 3, 5))
sketch5.addConstraint(Sketcher.Constraint("Equal", 7, 9))
sketch5.addConstraint(Sketcher.Constraint("Equal", 11, 13))
sketch5.addConstraint(Sketcher.Constraint("Symmetric", 3, 3, 9, 3, -2))
sketch5.addConstraint(Sketcher.Constraint("Symmetric", 7, 3, 13, 3, -2))
sketch5.addConstraint(Sketcher.Constraint("Horizontal", 1, 3, 11, 3))
sketch5.addConstraint(Sketcher.Constraint("Horizontal", 5, 3, 15, 3))
sketch5.addConstraint(Sketcher.Constraint("Vertical", 3, 3, 5, 3))
sketch5.addConstraint(Sketcher.Constraint("Equal", 2, 4))
sketch5.addConstraint(Sketcher.Constraint("Radius", 1, Q("2.5 mm")))
sketch5.addConstraint(Sketcher.Constraint("DistanceY", 0, 1, 0, 2, Q("15 mm")))
sketch5.addConstraint(Sketcher.Constraint("DistanceX", 1, 3, -1, 1, Q("34 mm")))
sketch5.addConstraint(Sketcher.Constraint("DistanceY", 5, 3, 3, 3, Q("43 mm")))
sketch5.addConstraint(Sketcher.Constraint("DistanceY", -1, 1, 1, 3, Q("104.818717 mm")))
sketch5.setExpression("Constraints[33]", "Params.sketch5_radius")
sketch5.setExpression("Constraints[34]", "Params.sketch5_height")
pocket4 = body.newObject("PartDesign::Pocket", "Pocket003")
pocket4.Profile = sketch5
pocket4.setExpression("Length", "Params.pocket4_length")

sketch6 = body.newObject("Sketcher::SketchObject", "Sketch005")
sketch6.AttachmentSupport = (doc.getObject("XZ_Plane"), [""])
sketch6.MapMode = "FlatFace"
sketch6.addGeometry(Part.LineSegment(V(7.5, 31.5, 0), V(-7.5, 31.5, 0)), False)
sketch6.addGeometry(Part.ArcOfCircle(Part.Circle(V(-7.5, 33.5, 0), V(0, 0, 1), 2), math.radians(90), math.radians(270)), False)
sketch6.addGeometry(Part.LineSegment(V(-7.5, 35.5, 0), V(7.5, 35.5, 0)), False)
sketch6.addGeometry(Part.ArcOfCircle(Part.Circle(V(7.5, 33.5, 0), V(0, 0, 1), 2), math.radians(-90), math.radians(90)), False)
sketch6.addConstraint(Sketcher.Constraint("Tangent", 0, 2, 1, 2))
sketch6.addConstraint(Sketcher.Constraint("Tangent", 1, 1, 2, 1))
sketch6.addConstraint(Sketcher.Constraint("Tangent", 2, 2, 3, 2))
sketch6.addConstraint(Sketcher.Constraint("Tangent", 3, 1, 0, 1))
sketch6.addConstraint(Sketcher.Constraint("Horizontal", 0))
sketch6.addConstraint(Sketcher.Constraint("Horizontal", 2))
sketch6.addConstraint(Sketcher.Constraint("Radius", 1, Q("2 mm")))
sketch6.addConstraint(Sketcher.Constraint("DistanceX", 0, 2, 0, 1, Q("15 mm")))
sketch6.addConstraint(Sketcher.Constraint("DistanceX", 1, 3, -1, 1, Q("7.5 mm")))
sketch6.addConstraint(Sketcher.Constraint("DistanceY", -1, 1, 1, 3, Q("33.500429 mm")))
sketch6.setExpression("Constraints[6]", "Params.sketch6_radius")
sketch6.setExpression("Constraints[7]", "Params.sketch6_width")
pocket5 = body.newObject("PartDesign::Pocket", "Pocket004")
pocket5.Profile = sketch6
pocket5.setExpression("Length", "Params.pocket5_length")

sketch7 = body.newObject("Sketcher::SketchObject", "Sketch006")
sketch7.AttachmentSupport = (doc.getObject("XZ_Plane"), [""])
sketch7.MapMode = "FlatFace"
sketch7.addGeometry(Part.LineSegment(V(-115, 40, 0), V(-115, 130, 0)), False)
sketch7.addGeometry(Part.LineSegment(V(-115, 130, 0), V(-80, 130, 0)), False)
sketch7.addGeometry(Part.LineSegment(V(-80, 130, 0), V(-80, 40, 0)), False)
sketch7.addGeometry(Part.LineSegment(V(-80, 40, 0), V(-115, 40, 0)), False)
sketch7.addGeometry(Part.LineSegment(V(80, 40, 0), V(80, 130, 0)), False)
sketch7.addGeometry(Part.LineSegment(V(80, 130, 0), V(115, 130, 0)), False)
sketch7.addGeometry(Part.LineSegment(V(115, 130, 0), V(115, 40, 0)), False)
sketch7.addGeometry(Part.LineSegment(V(115, 40, 0), V(80, 40, 0)), False)
sketch7.addConstraint(Sketcher.Constraint("Coincident", 0, 2, 1, 1))
sketch7.addConstraint(Sketcher.Constraint("Coincident", 1, 2, 2, 1))
sketch7.addConstraint(Sketcher.Constraint("Coincident", 2, 2, 3, 1))
sketch7.addConstraint(Sketcher.Constraint("Coincident", 3, 2, 0, 1))
sketch7.addConstraint(Sketcher.Constraint("Coincident", 4, 2, 5, 1))
sketch7.addConstraint(Sketcher.Constraint("Coincident", 5, 2, 6, 1))
sketch7.addConstraint(Sketcher.Constraint("Coincident", 6, 2, 7, 1))
sketch7.addConstraint(Sketcher.Constraint("Coincident", 7, 2, 4, 1))
sketch7.addConstraint(Sketcher.Constraint("Vertical", 0))
sketch7.addConstraint(Sketcher.Constraint("Horizontal", 1))
sketch7.addConstraint(Sketcher.Constraint("Vertical", 2))
sketch7.addConstraint(Sketcher.Constraint("Horizontal", 3))
sketch7.addConstraint(Sketcher.Constraint("Vertical", 4))
sketch7.addConstraint(Sketcher.Constraint("Horizontal", 5))
sketch7.addConstraint(Sketcher.Constraint("Vertical", 6))
sketch7.addConstraint(Sketcher.Constraint("Horizontal", 7))
sketch7.addConstraint(Sketcher.Constraint("Symmetric", 1, 2, 4, 2, -2))
sketch7.addConstraint(Sketcher.Constraint("Symmetric", 3, 2, 6, 2, -2))
sketch7.addConstraint(Sketcher.Constraint("DistanceX", 1, 1, 1, 2, Q("35 mm")))
sketch7.addConstraint(Sketcher.Constraint("DistanceY", 0, 1, 0, 2, Q("90 mm")))
sketch7.addConstraint(Sketcher.Constraint("DistanceX", 0, 2, -1, 1, Q("115 mm")))
sketch7.addConstraint(Sketcher.Constraint("DistanceY", -1, 1, 0, 2, Q("130.464771 mm")))
sketch7.setExpression("Constraints[18]", "Params.sketch7_width")
sketch7.setExpression("Constraints[19]", "Params.sketch7_height")
pocket6 = body.newObject("PartDesign::Pocket", "Pocket005")
pocket6.Profile = sketch7
pocket6.setExpression("Length", "Params.pocket6_length")

sketch8 = body.newObject("Sketcher::SketchObject", "Sketch007")
sketch8.AttachmentSupport = (doc.getObject("XZ_Plane"), [""])
sketch8.MapMode = "FlatFace"
sketch8.addGeometry(Part.LineSegment(V(-115, -70, 0), V(-115, -35, 0)), False)
sketch8.addGeometry(Part.LineSegment(V(-115, -35, 0), V(115, -35, 0)), False)
sketch8.addGeometry(Part.LineSegment(V(115, -35, 0), V(115, -70, 0)), False)
sketch8.addGeometry(Part.LineSegment(V(115, -70, 0), V(-115, -70, 0)), False)
sketch8.addConstraint(Sketcher.Constraint("Coincident", 0, 2, 1, 1))
sketch8.addConstraint(Sketcher.Constraint("Coincident", 1, 2, 2, 1))
sketch8.addConstraint(Sketcher.Constraint("Coincident", 2, 2, 3, 1))
sketch8.addConstraint(Sketcher.Constraint("Coincident", 3, 2, 0, 1))
sketch8.addConstraint(Sketcher.Constraint("Vertical", 0))
sketch8.addConstraint(Sketcher.Constraint("Horizontal", 1))
sketch8.addConstraint(Sketcher.Constraint("Vertical", 2))
sketch8.addConstraint(Sketcher.Constraint("Horizontal", 3))
sketch8.addConstraint(Sketcher.Constraint("DistanceX", 1, 1, 1, 2, Q("230 mm")))
sketch8.addConstraint(Sketcher.Constraint("DistanceY", 0, 1, 0, 2, Q("35 mm")))
sketch8.addConstraint(Sketcher.Constraint("DistanceX", 0, 2, -1, 1, Q("115 mm")))
sketch8.addConstraint(Sketcher.Constraint("DistanceY", 0, 2, -1, 1, Q("34.535229 mm")))
sketch8.setExpression("Constraints[8]", "Params.sketch8_width")
sketch8.setExpression("Constraints[9]", "Params.sketch8_height")
pocket7 = body.newObject("PartDesign::Pocket", "Pocket006")
pocket7.Profile = sketch8
pocket7.setExpression("Length", "Params.pocket7_length")
doc.recompute()

fillet = body.newObject("PartDesign::Fillet", "Fillet")
fillet.Base = (pocket7, edges_at(pocket7, [
    (-80, 4, 130.465),
    (-80, 4, 40.465),
    (-115, 4, 40.465),
    (115, 4, 40.465),
    (80, 4, 40.465),
    (80, 4, 130.465),
    (-115, 4, -34.535),
    (115, 4, -34.535),
]))
fillet.setExpression("Radius", "Params.fillet_radius")

doc.recompute()
